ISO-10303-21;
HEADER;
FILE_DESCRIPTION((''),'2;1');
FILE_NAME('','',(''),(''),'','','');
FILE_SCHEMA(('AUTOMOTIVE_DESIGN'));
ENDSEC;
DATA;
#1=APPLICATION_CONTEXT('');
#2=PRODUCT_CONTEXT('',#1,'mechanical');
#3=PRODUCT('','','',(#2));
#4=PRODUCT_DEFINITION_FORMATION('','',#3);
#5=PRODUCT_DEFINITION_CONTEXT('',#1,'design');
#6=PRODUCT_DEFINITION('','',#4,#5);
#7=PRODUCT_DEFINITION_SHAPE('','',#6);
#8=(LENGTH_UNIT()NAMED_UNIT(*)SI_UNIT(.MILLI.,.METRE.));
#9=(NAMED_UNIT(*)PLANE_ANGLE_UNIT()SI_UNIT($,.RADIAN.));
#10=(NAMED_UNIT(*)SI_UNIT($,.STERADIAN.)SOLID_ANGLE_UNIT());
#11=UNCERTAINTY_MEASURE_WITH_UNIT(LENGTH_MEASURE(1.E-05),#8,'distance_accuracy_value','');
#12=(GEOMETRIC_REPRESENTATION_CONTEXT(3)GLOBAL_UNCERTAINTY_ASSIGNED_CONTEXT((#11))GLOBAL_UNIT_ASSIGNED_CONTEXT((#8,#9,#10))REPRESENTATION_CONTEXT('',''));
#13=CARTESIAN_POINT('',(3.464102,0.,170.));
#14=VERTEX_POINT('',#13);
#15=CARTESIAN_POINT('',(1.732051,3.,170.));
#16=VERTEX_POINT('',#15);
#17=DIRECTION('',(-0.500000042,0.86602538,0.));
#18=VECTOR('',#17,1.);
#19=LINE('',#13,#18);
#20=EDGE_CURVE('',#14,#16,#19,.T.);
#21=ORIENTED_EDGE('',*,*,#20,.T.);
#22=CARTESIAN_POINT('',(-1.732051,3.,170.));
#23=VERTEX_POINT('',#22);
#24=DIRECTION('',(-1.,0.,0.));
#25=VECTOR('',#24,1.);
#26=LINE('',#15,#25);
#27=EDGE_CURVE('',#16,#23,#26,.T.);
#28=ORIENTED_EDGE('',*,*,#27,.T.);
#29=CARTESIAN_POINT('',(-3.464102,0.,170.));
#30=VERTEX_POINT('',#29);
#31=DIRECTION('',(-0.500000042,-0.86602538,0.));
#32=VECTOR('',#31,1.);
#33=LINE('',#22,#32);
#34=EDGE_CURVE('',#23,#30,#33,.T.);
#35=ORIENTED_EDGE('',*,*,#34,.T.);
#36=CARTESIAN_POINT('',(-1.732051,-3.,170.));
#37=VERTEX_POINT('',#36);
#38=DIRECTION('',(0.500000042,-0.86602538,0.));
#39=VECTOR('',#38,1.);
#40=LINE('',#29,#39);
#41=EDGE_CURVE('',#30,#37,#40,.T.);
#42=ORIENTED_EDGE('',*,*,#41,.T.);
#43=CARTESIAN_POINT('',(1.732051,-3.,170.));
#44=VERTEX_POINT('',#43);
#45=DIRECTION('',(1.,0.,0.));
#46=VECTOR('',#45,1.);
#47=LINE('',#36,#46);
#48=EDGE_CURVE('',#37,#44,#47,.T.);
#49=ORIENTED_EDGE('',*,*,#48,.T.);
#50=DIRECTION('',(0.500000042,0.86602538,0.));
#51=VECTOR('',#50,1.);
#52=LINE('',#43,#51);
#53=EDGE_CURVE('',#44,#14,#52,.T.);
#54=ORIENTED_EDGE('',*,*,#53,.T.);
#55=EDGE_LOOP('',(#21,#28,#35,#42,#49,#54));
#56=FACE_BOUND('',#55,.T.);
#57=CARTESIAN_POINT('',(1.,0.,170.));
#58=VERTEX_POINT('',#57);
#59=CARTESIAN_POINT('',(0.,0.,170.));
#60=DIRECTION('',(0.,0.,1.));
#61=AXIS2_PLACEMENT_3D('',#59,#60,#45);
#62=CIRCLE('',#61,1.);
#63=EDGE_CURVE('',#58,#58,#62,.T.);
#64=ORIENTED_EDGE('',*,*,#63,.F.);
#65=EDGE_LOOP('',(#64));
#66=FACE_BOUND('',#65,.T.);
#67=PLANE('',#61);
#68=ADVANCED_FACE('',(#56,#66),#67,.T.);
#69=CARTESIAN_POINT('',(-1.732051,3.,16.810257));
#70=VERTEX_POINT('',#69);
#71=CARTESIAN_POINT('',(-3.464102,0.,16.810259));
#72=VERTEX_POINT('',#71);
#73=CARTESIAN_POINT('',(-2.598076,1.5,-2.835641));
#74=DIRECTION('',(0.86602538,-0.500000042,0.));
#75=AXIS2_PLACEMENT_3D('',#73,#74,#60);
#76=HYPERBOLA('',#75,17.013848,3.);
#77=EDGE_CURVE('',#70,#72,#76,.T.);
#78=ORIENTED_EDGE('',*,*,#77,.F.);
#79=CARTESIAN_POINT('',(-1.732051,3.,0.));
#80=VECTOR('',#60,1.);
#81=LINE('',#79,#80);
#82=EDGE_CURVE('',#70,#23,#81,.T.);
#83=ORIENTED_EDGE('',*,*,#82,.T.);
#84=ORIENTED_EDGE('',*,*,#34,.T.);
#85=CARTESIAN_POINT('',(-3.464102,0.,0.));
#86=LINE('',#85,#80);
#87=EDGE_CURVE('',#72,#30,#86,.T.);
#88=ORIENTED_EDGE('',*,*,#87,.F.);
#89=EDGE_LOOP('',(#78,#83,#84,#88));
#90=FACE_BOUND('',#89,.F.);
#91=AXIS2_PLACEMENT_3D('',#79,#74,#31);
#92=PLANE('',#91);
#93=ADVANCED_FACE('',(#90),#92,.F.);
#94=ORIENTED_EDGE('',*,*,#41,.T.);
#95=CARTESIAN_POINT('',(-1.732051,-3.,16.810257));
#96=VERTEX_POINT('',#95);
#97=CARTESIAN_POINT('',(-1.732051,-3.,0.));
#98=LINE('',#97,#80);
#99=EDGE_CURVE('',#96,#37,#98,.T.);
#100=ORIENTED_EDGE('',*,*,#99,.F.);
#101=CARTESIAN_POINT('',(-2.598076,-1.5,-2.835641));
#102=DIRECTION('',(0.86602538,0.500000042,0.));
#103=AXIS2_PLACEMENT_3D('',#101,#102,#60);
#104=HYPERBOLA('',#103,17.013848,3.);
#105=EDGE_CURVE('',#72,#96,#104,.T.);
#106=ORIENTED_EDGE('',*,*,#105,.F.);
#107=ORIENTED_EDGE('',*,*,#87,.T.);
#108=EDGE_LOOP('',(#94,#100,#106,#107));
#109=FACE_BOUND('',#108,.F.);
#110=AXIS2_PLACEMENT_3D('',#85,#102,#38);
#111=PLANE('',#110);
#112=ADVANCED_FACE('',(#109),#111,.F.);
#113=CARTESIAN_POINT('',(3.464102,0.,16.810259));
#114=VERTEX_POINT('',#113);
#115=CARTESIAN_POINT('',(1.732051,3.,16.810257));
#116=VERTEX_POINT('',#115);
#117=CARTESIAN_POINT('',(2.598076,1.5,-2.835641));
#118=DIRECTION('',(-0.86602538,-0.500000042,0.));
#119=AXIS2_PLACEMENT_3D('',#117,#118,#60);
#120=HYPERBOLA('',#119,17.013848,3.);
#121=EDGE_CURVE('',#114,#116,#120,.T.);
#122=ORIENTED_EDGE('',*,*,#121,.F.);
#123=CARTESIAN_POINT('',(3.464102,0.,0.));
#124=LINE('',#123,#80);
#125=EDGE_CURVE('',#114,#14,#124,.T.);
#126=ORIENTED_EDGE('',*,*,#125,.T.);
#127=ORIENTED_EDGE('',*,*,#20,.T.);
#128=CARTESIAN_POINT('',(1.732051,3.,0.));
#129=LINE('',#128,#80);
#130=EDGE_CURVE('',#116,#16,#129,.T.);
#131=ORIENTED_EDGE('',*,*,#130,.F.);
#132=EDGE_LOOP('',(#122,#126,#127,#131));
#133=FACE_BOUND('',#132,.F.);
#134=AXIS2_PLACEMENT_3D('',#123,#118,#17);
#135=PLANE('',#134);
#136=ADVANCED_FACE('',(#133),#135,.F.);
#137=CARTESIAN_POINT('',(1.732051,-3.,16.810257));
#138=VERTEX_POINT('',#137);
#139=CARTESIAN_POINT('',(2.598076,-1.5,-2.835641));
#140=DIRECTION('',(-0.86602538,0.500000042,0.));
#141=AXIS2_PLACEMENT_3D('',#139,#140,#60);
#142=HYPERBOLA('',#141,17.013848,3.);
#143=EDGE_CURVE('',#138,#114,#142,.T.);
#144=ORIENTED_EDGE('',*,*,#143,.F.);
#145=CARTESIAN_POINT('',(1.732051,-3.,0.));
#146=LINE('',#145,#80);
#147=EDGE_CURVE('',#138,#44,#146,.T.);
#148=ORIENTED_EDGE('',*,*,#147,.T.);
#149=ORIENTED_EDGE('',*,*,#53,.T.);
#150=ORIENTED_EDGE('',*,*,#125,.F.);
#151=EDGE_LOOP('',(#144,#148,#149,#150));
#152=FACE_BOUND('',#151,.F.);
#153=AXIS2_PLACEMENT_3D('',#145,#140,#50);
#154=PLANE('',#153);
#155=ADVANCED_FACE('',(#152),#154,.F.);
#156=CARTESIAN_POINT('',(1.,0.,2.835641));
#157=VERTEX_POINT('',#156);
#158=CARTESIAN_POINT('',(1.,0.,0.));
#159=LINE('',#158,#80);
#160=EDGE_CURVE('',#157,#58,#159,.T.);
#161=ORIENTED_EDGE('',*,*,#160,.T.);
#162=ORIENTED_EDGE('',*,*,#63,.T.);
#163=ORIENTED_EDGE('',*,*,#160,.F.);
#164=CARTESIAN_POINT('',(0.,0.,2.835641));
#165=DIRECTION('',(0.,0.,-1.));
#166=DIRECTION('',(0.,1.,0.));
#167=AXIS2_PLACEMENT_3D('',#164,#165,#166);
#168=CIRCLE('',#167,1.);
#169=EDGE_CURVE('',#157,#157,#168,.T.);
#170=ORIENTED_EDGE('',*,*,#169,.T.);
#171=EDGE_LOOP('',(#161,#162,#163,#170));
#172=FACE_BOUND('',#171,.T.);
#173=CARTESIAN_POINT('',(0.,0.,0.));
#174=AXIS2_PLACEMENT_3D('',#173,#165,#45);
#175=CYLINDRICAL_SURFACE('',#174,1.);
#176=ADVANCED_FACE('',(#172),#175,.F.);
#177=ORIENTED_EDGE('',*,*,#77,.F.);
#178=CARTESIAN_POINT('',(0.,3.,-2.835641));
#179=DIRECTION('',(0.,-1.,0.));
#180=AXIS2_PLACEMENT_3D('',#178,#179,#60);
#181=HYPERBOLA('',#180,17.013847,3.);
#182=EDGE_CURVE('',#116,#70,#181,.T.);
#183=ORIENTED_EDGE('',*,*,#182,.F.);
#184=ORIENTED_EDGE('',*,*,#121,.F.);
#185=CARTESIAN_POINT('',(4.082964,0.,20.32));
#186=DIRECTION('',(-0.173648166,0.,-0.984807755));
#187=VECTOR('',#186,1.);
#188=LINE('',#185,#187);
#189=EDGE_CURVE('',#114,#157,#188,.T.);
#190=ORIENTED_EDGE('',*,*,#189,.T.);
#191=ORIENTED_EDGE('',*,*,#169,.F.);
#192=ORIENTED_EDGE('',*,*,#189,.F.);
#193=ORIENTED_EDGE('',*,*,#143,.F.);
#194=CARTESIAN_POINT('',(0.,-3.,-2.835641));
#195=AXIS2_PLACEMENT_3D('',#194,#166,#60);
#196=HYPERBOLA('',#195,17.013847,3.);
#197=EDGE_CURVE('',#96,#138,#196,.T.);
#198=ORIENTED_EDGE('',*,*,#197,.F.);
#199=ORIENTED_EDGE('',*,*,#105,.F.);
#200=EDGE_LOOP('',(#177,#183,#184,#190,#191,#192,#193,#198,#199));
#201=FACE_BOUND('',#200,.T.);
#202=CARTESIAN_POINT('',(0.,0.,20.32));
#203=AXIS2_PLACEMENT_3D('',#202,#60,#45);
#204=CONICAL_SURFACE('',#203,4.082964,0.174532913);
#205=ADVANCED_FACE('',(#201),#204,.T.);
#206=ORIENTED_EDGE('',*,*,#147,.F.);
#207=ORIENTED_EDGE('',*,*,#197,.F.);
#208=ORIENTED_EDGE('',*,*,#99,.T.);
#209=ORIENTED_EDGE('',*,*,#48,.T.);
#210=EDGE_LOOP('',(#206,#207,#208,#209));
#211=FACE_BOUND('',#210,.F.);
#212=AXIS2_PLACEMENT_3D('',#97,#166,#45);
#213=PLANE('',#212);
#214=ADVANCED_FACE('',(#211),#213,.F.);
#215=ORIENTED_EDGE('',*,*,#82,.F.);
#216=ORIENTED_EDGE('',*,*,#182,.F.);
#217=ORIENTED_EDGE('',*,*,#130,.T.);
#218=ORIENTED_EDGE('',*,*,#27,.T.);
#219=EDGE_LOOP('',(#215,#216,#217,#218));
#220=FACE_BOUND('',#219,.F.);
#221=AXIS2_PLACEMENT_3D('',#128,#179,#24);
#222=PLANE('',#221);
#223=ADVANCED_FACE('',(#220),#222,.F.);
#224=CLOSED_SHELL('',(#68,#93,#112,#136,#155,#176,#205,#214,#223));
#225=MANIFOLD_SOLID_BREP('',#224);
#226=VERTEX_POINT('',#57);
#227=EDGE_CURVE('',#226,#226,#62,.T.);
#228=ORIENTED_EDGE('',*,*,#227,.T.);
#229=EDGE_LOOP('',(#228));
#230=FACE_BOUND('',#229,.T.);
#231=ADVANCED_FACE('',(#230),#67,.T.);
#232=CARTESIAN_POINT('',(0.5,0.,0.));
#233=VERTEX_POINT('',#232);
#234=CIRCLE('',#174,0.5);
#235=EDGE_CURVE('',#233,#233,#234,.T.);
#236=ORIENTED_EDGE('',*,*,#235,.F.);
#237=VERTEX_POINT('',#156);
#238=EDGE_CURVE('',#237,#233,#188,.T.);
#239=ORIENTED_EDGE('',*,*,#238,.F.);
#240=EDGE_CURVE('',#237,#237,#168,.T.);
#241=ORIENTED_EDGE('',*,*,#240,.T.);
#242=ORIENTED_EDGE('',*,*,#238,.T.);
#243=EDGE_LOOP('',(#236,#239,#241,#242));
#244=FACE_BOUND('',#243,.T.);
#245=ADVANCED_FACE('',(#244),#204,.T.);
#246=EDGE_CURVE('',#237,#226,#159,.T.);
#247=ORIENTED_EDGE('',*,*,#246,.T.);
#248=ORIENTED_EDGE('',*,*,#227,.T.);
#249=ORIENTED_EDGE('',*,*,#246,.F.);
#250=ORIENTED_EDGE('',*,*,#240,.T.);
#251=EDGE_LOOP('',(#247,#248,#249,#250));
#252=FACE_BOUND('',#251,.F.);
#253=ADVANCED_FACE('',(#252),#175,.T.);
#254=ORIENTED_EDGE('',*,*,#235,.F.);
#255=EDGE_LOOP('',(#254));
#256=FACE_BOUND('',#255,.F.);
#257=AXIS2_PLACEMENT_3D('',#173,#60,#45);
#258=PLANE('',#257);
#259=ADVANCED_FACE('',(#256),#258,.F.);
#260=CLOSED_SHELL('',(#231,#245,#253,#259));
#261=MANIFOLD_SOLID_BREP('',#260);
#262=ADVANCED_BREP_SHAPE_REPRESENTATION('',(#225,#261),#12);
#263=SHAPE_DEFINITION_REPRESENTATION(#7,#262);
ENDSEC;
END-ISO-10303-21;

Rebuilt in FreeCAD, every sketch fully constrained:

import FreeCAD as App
import Part
import Sketcher

V = App.Vector
Q = App.Units.Quantity

doc = App.newDocument("Part")
params = doc.addObject("Spreadsheet::Sheet", "Params")
for row, (alias, value) in enumerate([
    ("sketch1_diameter", "2 mm"),
    ("pad1_length", "170 mm"),
    ("sketch2_diameter", "2 mm"),
    ("pad2_length", "170 mm"),
    ("sketch3_height", "20.32 mm"),
    ("revolution_angle", "360 deg"),
], start=1):
    params.set(f"A{row}", alias)
    params.set(f"B{row}", "=" + value)
    params.setAlias(f"B{row}", alias)

body = doc.addObject("PartDesign::Body", "Body")

# Sketch on XY plane
sketch1 = body.newObject("Sketcher::SketchObject", "Sketch")
sketch1.AttachmentSupport = (doc.getObject("XY_Plane"), [""])
sketch1.MapMode = "FlatFace"
sketch1.addGeometry(Part.LineSegment(V(1.732051, 3, 0), V(-1.732051, 3, 0)), False)
sketch1.addGeometry(Part.LineSegment(V(-1.732051, 3, 0), V(-3.464102, 0, 0)), False)
sketch1.addGeometry(Part.LineSegment(V(-3.464102, 0, 0), V(-1.732051, -3, 0)), False)
sketch1.addGeometry(Part.LineSegment(V(-1.732051, -3, 0), V(1.732051, -3, 0)), False)
sketch1.addGeometry(Part.LineSegment(V(1.732051, -3, 0), V(3.464102, 0, 0)), False)
sketch1.addGeometry(Part.LineSegment(V(3.464102, 0, 0), V(1.732051, 3, 0)), False)
sketch1.addGeometry(Part.Circle(V(0, 0, 0), V(0, 0, 1), 1), False)
sketch1.addConstraint(Sketcher.Constraint("Coincident", 0, 2, 1, 1))
sketch1.addConstraint(Sketcher.Constraint("Coincident", 1, 2, 2, 1))
sketch1.addConstraint(Sketcher.Constraint("Coincident", 2, 2, 3, 1))
sketch1.addConstraint(Sketcher.Constraint("Coincident", 3, 2, 4, 1))
sketch1.addConstraint(Sketcher.Constraint("Coincident", 4, 2, 5, 1))
sketch1.addConstraint(Sketcher.Constraint("Coincident", 5, 2, 0, 1))
sketch1.addConstraint(Sketcher.Constraint("Horizontal", 0))
sketch1.addConstraint(Sketcher.Constraint("Horizontal", 3))
sketch1.addConstraint(Sketcher.Constraint("Coincident", 6, 3, -1, 1))
sketch1.addConstraint(Sketcher.Constraint("Symmetric", 0, 2, 3, 2, -1, 1))
sketch1.addConstraint(Sketcher.Constraint("Symmetric", 1, 2, 4, 2, -1, 1))
sketch1.addConstraint(Sketcher.Constraint("PointOnObject", 1, 2, -1))
sketch1.addConstraint(Sketcher.Constraint("Parallel", 2, 5))
sketch1.addConstraint(Sketcher.Constraint("Vertical", 0, 2, 2, 2))
sketch1.addConstraint(Sketcher.Constraint("Diameter", 6, 2.0))
sketch1.addConstraint(Sketcher.Constraint("Angle", 1, Q("-120.000003 deg")))
sketch1.addConstraint(Sketcher.Constraint("DistanceY", -1, 1, 0, 2, 3.0))
sketch1.addConstraint(Sketcher.Constraint("DistanceX", 0, 2, 0, 1, 3.464102))
sketch1.setExpression("Constraints[14]", "Params.sketch1_diameter")
pad1 = body.newObject("PartDesign::Pad", "Pad")
pad1.Profile = sketch1
pad1.setExpression("Length", "Params.pad1_length")
body2 = doc.addObject("PartDesign::Body", "Body001")

# Sketch on XY plane
sketch2 = body2.newObject("Sketcher::SketchObject", "Sketch001")
sketch2.AttachmentSupport = (doc.getObject("XY_Plane001"), [""])
sketch2.MapMode = "FlatFace"
sketch2.addGeometry(Part.Circle(V(0, 0, 0), V(0, 0, 1), 1), False)
sketch2.addConstraint(Sketcher.Constraint("Coincident", 0, 3, -1, 1))
sketch2.addConstraint(Sketcher.Constraint("Diameter", 0, 2.0))
sketch2.setExpression("Constraints[1]", "Params.sketch2_diameter")
pad2 = body2.newObject("PartDesign::Pad", "Pad001")
pad2.Profile = sketch2
pad2.setExpression("Length", "Params.pad2_length")
body3 = doc.addObject("PartDesign::Body", "Body002")

# Sketch on XZ plane
sketch3 = body3.newObject("Sketcher::SketchObject", "Sketch002")
sketch3.AttachmentSupport = (doc.getObject("XZ_Plane002"), [""])
sketch3.MapMode = "FlatFace"
sketch3.addGeometry(Part.LineSegment(V(4.082964, 20.32, 0), V(0.5, 0, 0)), False)
sketch3.addGeometry(Part.LineSegment(V(0.5, 0, 0), V(4.082964, 0, 0)), False)
sketch3.addGeometry(Part.LineSegment(V(4.082964, 0, 0), V(4.082964, 20.32, 0)), False)
sketch3.addConstraint(Sketcher.Constraint("Coincident", 0, 2, 1, 1))
sketch3.addConstraint(Sketcher.Constraint("Coincident", 1, 2, 2, 1))
sketch3.addConstraint(Sketcher.Constraint("Coincident", 2, 2, 0, 1))
sketch3.addConstraint(Sketcher.Constraint("Horizontal", 1))
sketch3.addConstraint(Sketcher.Constraint("Vertical", 2))
sketch3.addConstraint(Sketcher.Constraint("PointOnObject", 0, 2, -1))
sketch3.addConstraint(Sketcher.Constraint("Angle", 0, Q("-99.999999 deg")))
sketch3.addConstraint(Sketcher.Constraint("DistanceY", 2, 1, 2, 2, 20.32))
sketch3.addConstraint(Sketcher.Constraint("DistanceX", -1, 1, 0, 2, 0.5))
sketch3.setExpression("Constraints[7]", "Params.sketch3_height")
revolution = body3.newObject("PartDesign::Revolution", "Revolution")
revolution.Profile = sketch3
revolution.ReferenceAxis = (sketch3, ["V_Axis"])
revolution.setExpression("Angle", "Params.revolution_angle")
doc.recompute()

body4 = doc.addObject("PartDesign::Body", "Body003")
body4.BaseFeature = body3
boolean = body.newObject("PartDesign::Boolean", "Boolean")
boolean.Type = "Cut"
boolean.addObjects([body4])
doc.recompute()

boolean2 = body2.newObject("PartDesign::Boolean", "Boolean001")
boolean2.Type = "Cut"
boolean2.addObjects([body3])

doc.recompute()
